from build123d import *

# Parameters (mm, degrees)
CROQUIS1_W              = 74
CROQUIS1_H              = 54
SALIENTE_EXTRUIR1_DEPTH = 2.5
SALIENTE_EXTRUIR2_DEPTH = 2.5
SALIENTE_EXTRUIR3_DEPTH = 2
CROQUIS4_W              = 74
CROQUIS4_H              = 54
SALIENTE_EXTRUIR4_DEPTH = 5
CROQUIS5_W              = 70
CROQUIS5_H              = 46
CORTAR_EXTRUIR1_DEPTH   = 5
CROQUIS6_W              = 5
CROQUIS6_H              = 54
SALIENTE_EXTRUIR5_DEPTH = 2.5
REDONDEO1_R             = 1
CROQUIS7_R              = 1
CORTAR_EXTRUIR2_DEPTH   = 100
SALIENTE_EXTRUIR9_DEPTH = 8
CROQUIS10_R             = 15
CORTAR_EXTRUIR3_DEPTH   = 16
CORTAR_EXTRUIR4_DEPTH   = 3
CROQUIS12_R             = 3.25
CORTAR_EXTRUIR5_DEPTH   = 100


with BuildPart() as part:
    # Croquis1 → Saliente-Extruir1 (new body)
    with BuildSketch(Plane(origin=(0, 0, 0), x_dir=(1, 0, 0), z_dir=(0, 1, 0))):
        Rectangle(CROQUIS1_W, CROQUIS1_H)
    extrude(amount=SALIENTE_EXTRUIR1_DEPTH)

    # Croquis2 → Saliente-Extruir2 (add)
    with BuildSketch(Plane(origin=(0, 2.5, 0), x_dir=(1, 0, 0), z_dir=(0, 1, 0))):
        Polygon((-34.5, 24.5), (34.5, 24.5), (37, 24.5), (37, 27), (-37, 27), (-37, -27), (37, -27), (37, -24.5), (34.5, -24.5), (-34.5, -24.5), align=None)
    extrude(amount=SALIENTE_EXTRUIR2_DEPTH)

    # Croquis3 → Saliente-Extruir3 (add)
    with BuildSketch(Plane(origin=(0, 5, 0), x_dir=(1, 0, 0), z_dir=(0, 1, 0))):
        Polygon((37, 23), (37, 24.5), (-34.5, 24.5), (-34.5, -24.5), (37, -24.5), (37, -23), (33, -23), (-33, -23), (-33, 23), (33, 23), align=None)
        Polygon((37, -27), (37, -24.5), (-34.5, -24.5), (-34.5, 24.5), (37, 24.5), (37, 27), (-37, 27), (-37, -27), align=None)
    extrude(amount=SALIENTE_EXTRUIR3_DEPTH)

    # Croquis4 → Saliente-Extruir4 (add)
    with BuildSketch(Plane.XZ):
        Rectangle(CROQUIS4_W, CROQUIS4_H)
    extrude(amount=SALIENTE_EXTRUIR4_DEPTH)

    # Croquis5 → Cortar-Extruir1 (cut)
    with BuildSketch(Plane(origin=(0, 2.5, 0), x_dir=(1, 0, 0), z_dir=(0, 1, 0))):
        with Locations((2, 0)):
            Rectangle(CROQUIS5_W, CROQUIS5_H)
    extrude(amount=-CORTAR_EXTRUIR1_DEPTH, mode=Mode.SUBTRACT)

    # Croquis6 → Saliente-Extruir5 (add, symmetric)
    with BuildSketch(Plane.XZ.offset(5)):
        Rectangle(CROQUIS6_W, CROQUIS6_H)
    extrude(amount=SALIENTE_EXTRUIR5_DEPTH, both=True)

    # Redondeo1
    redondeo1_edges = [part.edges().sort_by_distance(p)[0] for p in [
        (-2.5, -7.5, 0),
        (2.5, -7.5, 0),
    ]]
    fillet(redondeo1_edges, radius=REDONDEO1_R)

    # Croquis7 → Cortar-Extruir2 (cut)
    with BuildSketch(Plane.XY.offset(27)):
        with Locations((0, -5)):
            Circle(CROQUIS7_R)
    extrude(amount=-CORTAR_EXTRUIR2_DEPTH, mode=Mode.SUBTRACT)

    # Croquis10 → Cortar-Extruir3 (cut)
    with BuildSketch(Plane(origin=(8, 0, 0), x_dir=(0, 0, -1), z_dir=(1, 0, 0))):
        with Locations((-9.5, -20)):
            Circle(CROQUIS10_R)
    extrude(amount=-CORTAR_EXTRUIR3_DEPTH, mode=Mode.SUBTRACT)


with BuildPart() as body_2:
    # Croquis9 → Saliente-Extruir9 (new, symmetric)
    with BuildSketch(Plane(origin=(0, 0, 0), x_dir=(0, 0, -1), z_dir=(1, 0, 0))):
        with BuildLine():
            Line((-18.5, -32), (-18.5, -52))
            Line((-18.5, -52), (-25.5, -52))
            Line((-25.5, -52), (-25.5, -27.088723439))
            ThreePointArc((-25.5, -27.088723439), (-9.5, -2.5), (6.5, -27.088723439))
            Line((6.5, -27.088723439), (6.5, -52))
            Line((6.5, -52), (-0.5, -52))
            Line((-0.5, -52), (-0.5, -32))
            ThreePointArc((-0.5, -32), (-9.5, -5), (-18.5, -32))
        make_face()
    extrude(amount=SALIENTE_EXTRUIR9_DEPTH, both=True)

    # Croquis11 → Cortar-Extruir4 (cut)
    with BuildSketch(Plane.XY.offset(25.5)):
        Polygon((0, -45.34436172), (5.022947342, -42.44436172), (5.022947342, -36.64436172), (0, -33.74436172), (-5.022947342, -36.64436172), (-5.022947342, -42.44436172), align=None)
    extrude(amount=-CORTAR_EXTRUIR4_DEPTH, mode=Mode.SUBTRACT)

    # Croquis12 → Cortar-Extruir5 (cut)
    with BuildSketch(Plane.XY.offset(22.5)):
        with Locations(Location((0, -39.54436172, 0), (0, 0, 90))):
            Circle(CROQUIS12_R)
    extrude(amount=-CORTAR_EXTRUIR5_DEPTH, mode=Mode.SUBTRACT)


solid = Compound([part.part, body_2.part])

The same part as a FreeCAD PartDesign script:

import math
import FreeCAD as App
import Part
import Sketcher

V = App.Vector
Q = App.Units.Quantity


def edges_at(feature, points):
    """Names of the edges that pass closest to the given points."""
    edges = feature.Shape.Edges
    near = lambda p: min(range(len(edges)), key=lambda i: edges[i].distToShape(Part.Vertex(*p))[0])
    return sorted({f"Edge{near(p) + 1}" for p in points})

doc = App.newDocument("Part")
params = doc.addObject("Spreadsheet::Sheet", "Params")
for row, (alias, value) in enumerate([
    ("sketch1_width", "74 mm"),
    ("sketch1_height", "54 mm"),
    ("pad1_length", "2.5 mm"),
    ("sketch2_width", "74 mm"),
    ("sketch2_height", "54 mm"),
    ("sketch2_height2", "49 mm"),
    ("sketch2_width2", "71.5 mm"),
    ("pad2_length", "2.5 mm"),
    ("sketch3_width", "74 mm"),
    ("sketch3_width2", "70 mm"),
    ("sketch3_height", "4 mm"),
    ("sketch3_height2", "54 mm"),
    ("pad3_length", "2 mm"),
    ("sketch4_width", "74 mm"),
    ("sketch4_height", "54 mm"),
    ("pad4_length", "5 mm"),
    ("sketch5_width", "70 mm"),
    ("sketch5_height", "46 mm"),
    ("pocket1_length", "5 mm"),
    ("sketch6_width", "5 mm"),
    ("sketch6_height", "54 mm"),
    ("pad5_length", "5 mm"),
    ("fillet_radius", "1 mm"),
    ("sketch7_diameter", "2 mm"),
    ("pocket2_length", "100 mm"),
    ("sketch8_diameter", "30 mm"),
    ("pocket3_length", "16 mm"),
    ("sketch9_radius", "15 mm"),
    ("sketch9_radius2", "17.5 mm"),
    ("sketch9_width", "20 mm"),
    ("sketch9_height", "7 mm"),
    ("pad6_length", "16 mm"),
    ("sketch10_height", "5.8 mm"),
    ("sketch10_length", "5.8 mm"),
    ("pocket4_length", "3 mm"),
    ("sketch11_diameter", "6.5 mm"),
    ("pocket5_length", "100 mm"),
], start=1):
    params.set(f"A{row}", alias)
    params.set(f"B{row}", "=" + value)
    params.setAlias(f"B{row}", alias)

body = doc.addObject("PartDesign::Body", "Body")

# Sketch on XZ plane
sketch1 = body.newObject("Sketcher::SketchObject", "Sketch")
sketch1.AttachmentSupport = (doc.getObject("XZ_Plane"), [""])
sketch1.MapMode = "FlatFace"
sketch1.addGeometry(Part.LineSegment(V(-37, -27, 0), V(-37, 27, 0)), False)
sketch1.addGeometry(Part.LineSegment(V(-37, 27, 0), V(37, 27, 0)), False)
sketch1.addGeometry(Part.LineSegment(V(37, 27, 0), V(37, -27, 0)), False)
sketch1.addGeometry(Part.LineSegment(V(37, -27, 0), V(-37, -27, 0)), False)
sketch1.addConstraint(Sketcher.Constraint("Coincident", 0, 2, 1, 1))
sketch1.addConstraint(Sketcher.Constraint("Coincident", 1, 2, 2, 1))
sketch1.addConstraint(Sketcher.Constraint("Coincident", 2, 2, 3, 1))
sketch1.addConstraint(Sketcher.Constraint("Coincident", 3, 2, 0, 1))
sketch1.addConstraint(Sketcher.Constraint("Vertical", 0))
sketch1.addConstraint(Sketcher.Constraint("Horizontal", 1))
sketch1.addConstraint(Sketcher.Constraint("Vertical", 2))
sketch1.addConstraint(Sketcher.Constraint("Horizontal", 3))
sketch1.addConstraint(Sketcher.Constraint("Symmetric", 0, 2, 2, 2, -1, 1))
sketch1.addConstraint(Sketcher.Constraint("DistanceX", 1, 1, 1, 2, 74.0))
sketch1.addConstraint(Sketcher.Constraint("DistanceY", 0, 1, 0, 2, 54.0))
sketch1.setExpression("Constraints[9]", "Params.sketch1_width")
sketch1.setExpression("Constraints[10]", "Params.sketch1_height")
pad1 = body.newObject("PartDesign::Pad", "Pad")
pad1.Profile = sketch1
pad1.setExpression("Length", "Params.pad1_length")
pad1.Reversed = True

# Sketch on XZ plane
sketch2 = body.newObject("Sketcher::SketchObject", "Sketch001")
sketch2.AttachmentSupport = (doc.getObject("XZ_Plane"), [""])
sketch2.MapMode = "FlatFace"
sketch2.AttachmentOffset = App.Placement(V(0, 0, -2.5), App.Rotation())
sketch2.addGeometry(Part.LineSegment(V(-34.5, -24.5, 0), V(37, -24.5, 0)), False)
sketch2.addGeometry(Part.LineSegment(V(37, -24.5, 0), V(37, -27, 0)), False)
sketch2.addGeometry(Part.LineSegment(V(37, -27, 0), V(-37, -27, 0)), False)
sketch2.addGeometry(Part.LineSegment(V(-37, -27, 0), V(-37, 27, 0)), False)
sketch2.addGeometry(Part.LineSegment(V(-37, 27, 0), V(37, 27, 0)), False)
sketch2.addGeometry(Part.LineSegment(V(37, 27, 0), V(37, 24.5, 0)), False)
sketch2.addGeometry(Part.LineSegment(V(37, 24.5, 0), V(-34.5, 24.5, 0)), False)
sketch2.addGeometry(Part.LineSegment(V(-34.5, 24.5, 0), V(-34.5, -24.5, 0)), False)
sketch2.addConstraint(Sketcher.Constraint("Coincident", 0, 2, 1, 1))
sketch2.addConstraint(Sketcher.Constraint("Coincident", 1, 2, 2, 1))
sketch2.addConstraint(Sketcher.Constraint("Coincident", 2, 2, 3, 1))
sketch2.addConstraint(Sketcher.Constraint("Coincident", 3, 2, 4, 1))
sketch2.addConstraint(Sketcher.Constraint("Coincident", 4, 2, 5, 1))
sketch2.addConstraint(Sketcher.Constraint("Coincident", 5, 2, 6, 1))
sketch2.addConstraint(Sketcher.Constraint("Coincident", 6, 2, 7, 1))
sketch2.addConstraint(Sketcher.Constraint("Coincident", 7, 2, 0, 1))
sketch2.addConstraint(Sketcher.Constraint("Horizontal", 0))
sketch2.addConstraint(Sketcher.Constraint("Vertical", 1))
sketch2.addConstraint(Sketcher.Constraint("Horizontal", 2))
sketch2.addConstraint(Sketcher.Constraint("Vertical", 3))
sketch2.addConstraint(Sketcher.Constraint("Horizontal", 4))
sketch2.addConstraint(Sketcher.Constraint("Vertical", 5))
sketch2.addConstraint(Sketcher.Constraint("Horizontal", 6))
sketch2.addConstraint(Sketcher.Constraint("Vertical", 7))
sketch2.addConstraint(Sketcher.Constraint("Symmetric", 1, 2, 3, 2, -1, 1))
sketch2.addConstraint(Sketcher.Constraint("Symmetric", 0, 2, 5, 2, -1))
sketch2.addConstraint(Sketcher.Constraint("DistanceX", 2, 2, 2, 1, 74.0))
sketch2.addConstraint(Sketcher.Constraint("DistanceY", 3, 1, 3, 2, 54.0))
sketch2.addConstraint(Sketcher.Constraint("DistanceY", 7, 2, 7, 1, 49.0))
sketch2.addConstraint(Sketcher.Constraint("DistanceX", 0, 1, 0, 2, 71.5))
sketch2.setExpression("Constraints[18]", "Params.sketch2_width")
sketch2.setExpression("Constraints[19]", "Params.sketch2_height")
sketch2.setExpression("Constraints[20]", "Params.sketch2_height2")
sketch2.setExpression("Constraints[21]", "Params.sketch2_width2")
pad2 = body.newObject("PartDesign::Pad", "Pad001")
pad2.Profile = sketch2
pad2.setExpression("Length", "Params.pad2_length")
pad2.Reversed = True

# Sketch on XZ plane
sketch3 = body.newObject("Sketcher::SketchObject", "Sketch002")
sketch3.AttachmentSupport = (doc.getObject("XZ_Plane"), [""])
sketch3.MapMode = "FlatFace"
sketch3.AttachmentOffset = App.Placement(V(0, 0, -5), App.Rotation())
sketch3.addGeometry(Part.LineSegment(V(37, -23, 0), V(37, -27, 0)), False)
sketch3.addGeometry(Part.LineSegment(V(37, -27, 0), V(-37, -27, 0)), False)
sketch3.addGeometry(Part.LineSegment(V(-37, -27, 0), V(-37, 27, 0)), False)
sketch3.addGeometry(Part.LineSegment(V(-37, 27, 0), V(37, 27, 0)), False)
sketch3.addGeometry(Part.LineSegment(V(37, 27, 0), V(37, 23, 0)), False)
sketch3.addGeometry(Part.LineSegment(V(37, 23, 0), V(-33, 23, 0)), False)
sketch3.addGeometry(Part.LineSegment(V(-33, 23, 0), V(-33, -23, 0)), False)
sketch3.addGeometry(Part.LineSegment(V(-33, -23, 0), V(37, -23, 0)), False)
sketch3.addConstraint(Sketcher.Constraint("Coincident", 0, 2, 1, 1))
sketch3.addConstraint(Sketcher.Constraint("Coincident", 1, 2, 2, 1))
sketch3.addConstraint(Sketcher.Constraint("Coincident", 2, 2, 3, 1))
sketch3.addConstraint(Sketcher.Constraint("Coincident", 3, 2, 4, 1))
sketch3.addConstraint(Sketcher.Constraint("Coincident", 4, 2, 5, 1))
sketch3.addConstraint(Sketcher.Constraint("Coincident", 5, 2, 6, 1))
sketch3.addConstraint(Sketcher.Constraint("Coincident", 6, 2, 7, 1))
sketch3.addConstraint(Sketcher.Constraint("Coincident", 7, 2, 0, 1))
sketch3.addConstraint(Sketcher.Constraint("Vertical", 0))
sketch3.addConstraint(Sketcher.Constraint("Horizontal", 1))
sketch3.addConstraint(Sketcher.Constraint("Vertical", 2))
sketch3.addConstraint(Sketcher.Constraint("Horizontal", 3))
sketch3.addConstraint(Sketcher.Constraint("Vertical", 4))
sketch3.addConstraint(Sketcher.Constraint("Horizontal", 5))
sketch3.addConstraint(Sketcher.Constraint("Vertical", 6))
sketch3.addConstraint(Sketcher.Constraint("Horizontal", 7))
sketch3.addConstraint(Sketcher.Constraint("Symmetric", 0, 2, 2, 2, -1, 1))
sketch3.addConstraint(Sketcher.Constraint("Symmetric", 4, 2, 7, 2, -1))
sketch3.addConstraint(Sketcher.Constraint("DistanceX", 1, 2, 1, 1, 74.0))
sketch3.addConstraint(Sketcher.Constraint("DistanceX", 5, 2, 5, 1, 70.0))
sketch3.addConstraint(Sketcher.Constraint("DistanceY", 0, 2, 0, 1, 4.0))
sketch3.addConstraint(Sketcher.Constraint("DistanceY", 2, 1, 2, 2, 54.0))
sketch3.setExpression("Constraints[18]", "Params.sketch3_width")
sketch3.setExpression("Constraints[19]", "Params.sketch3_width2")
sketch3.setExpression("Constraints[20]", "Params.sketch3_height")
sketch3.setExpression("Constraints[21]", "Params.sketch3_height2")
pad3 = body.newObject("PartDesign::Pad", "Pad002")
pad3.Profile = sketch3
pad3.setExpression("Length", "Params.pad3_length")
pad3.Reversed = True

# Sketch on XZ plane
sketch4 = body.newObject("Sketcher::SketchObject", "Sketch003")
sketch4.AttachmentSupport = (doc.getObject("XZ_Plane"), [""])
sketch4.MapMode = "FlatFace"
sketch4.addGeometry(Part.LineSegment(V(-37, 27, 0), V(-37, -27, 0)), False)
sketch4.addGeometry(Part.LineSegment(V(-37, -27, 0), V(37, -27, 0)), False)
sketch4.addGeometry(Part.LineSegment(V(37, -27, 0), V(37, 27, 0)), False)
sketch4.addGeometry(Part.LineSegment(V(37, 27, 0), V(-37, 27, 0)), False)
sketch4.addConstraint(Sketcher.Constraint("Coincident", 0, 2, 1, 1))
sketch4.addConstraint(Sketcher.Constraint("Coincident", 1, 2, 2, 1))
sketch4.addConstraint(Sketcher.Constraint("Coincident", 2, 2, 3, 1))
sketch4.addConstraint(Sketcher.Constraint("Coincident", 3, 2, 0, 1))
sketch4.addConstraint(Sketcher.Constraint("Vertical", 0))
sketch4.addConstraint(Sketcher.Constraint("Horizontal", 1))
sketch4.addConstraint(Sketcher.Constraint("Vertical", 2))
sketch4.addConstraint(Sketcher.Constraint("Horizontal", 3))
sketch4.addConstraint(Sketcher.Constraint("Symmetric", 0, 2, 2, 2, -1, 1))
sketch4.addConstraint(Sketcher.Constraint("DistanceX", 1, 1, 1, 2, 74.0))
sketch4.addConstraint(Sketcher.Constraint("DistanceY", 0, 2, 0, 1, 54.0))
sketch4.setExpression("Constraints[9]", "Params.sketch4_width")
sketch4.setExpression("Constraints[10]", "Params.sketch4_height")
pad4 = body.newObject("PartDesign::Pad", "Pad003")
pad4.Profile = sketch4
pad4.setExpression("Length", "Params.pad4_length")

# Sketch on XZ plane
sketch5 = body.newObject("Sketcher::SketchObject", "Sketch004")
sketch5.AttachmentSupport = (doc.getObject("XZ_Plane"), [""])
sketch5.MapMode = "FlatFace"
sketch5.AttachmentOffset = App.Placement(V(0, 0, -2.5), App.Rotation())
sketch5.addGeometry(Part.LineSegment(V(-33, -23, 0), V(-33, 23, 0)), False)
sketch5.addGeometry(Part.LineSegment(V(-33, 23, 0), V(37, 23, 0)), False)
sketch5.addGeometry(Part.LineSegment(V(37, 23, 0), V(37, -23, 0)), False)
sketch5.addGeometry(Part.LineSegment(V(37, -23, 0), V(-33, -23, 0)), False)
sketch5.addConstraint(Sketcher.Constraint("Coincident", 0, 2, 1, 1))
sketch5.addConstraint(Sketcher.Constraint("Coincident", 1, 2, 2, 1))
sketch5.addConstraint(Sketcher.Constraint("Coincident", 2, 2, 3, 1))
sketch5.addConstraint(Sketcher.Constraint("Coincident", 3, 2, 0, 1))
sketch5.addConstraint(Sketcher.Constraint("Vertical", 0))
sketch5.addConstraint(Sketcher.Constraint("Horizontal", 1))
sketch5.addConstraint(Sketcher.Constraint("Vertical", 2))
sketch5.addConstraint(Sketcher.Constraint("Horizontal", 3))
sketch5.addConstraint(Sketcher.Constraint("DistanceX", 1, 1, 1, 2, 70.0))
sketch5.addConstraint(Sketcher.Constraint("DistanceY", 0, 1, 0, 2, 46.0))
sketch5.addConstraint(Sketcher.Constraint("DistanceX", 0, 2, -1, 1, 33.0))
sketch5.addConstraint(Sketcher.Constraint("DistanceY", -1, 1, 0, 2, 23.0))
sketch5.setExpression("Constraints[8]", "Params.sketch5_width")
sketch5.setExpression("Constraints[9]", "Params.sketch5_height")
pocket1 = body.newObject("PartDesign::Pocket", "Pocket")
pocket1.Profile = sketch5
pocket1.setExpression("Length", "Params.pocket1_length")
pocket1.Reversed = True

# Sketch on XZ plane
sketch6 = body.newObject("Sketcher::SketchObject", "Sketch005")
sketch6.AttachmentSupport = (doc.getObject("XZ_Plane"), [""])
sketch6.MapMode = "FlatFace"
sketch6.AttachmentOffset = App.Placement(V(0, 0, 5), App.Rotation())
sketch6.addGeometry(Part.LineSegment(V(-2, 27, 0), V(-2, -27, 0)), False)
sketch6.addGeometry(Part.LineSegment(V(-2, -27, 0), V(2, -27, 0)), False)
sketch6.addGeometry(Part.LineSegment(V(2, -27, 0), V(2, 27, 0)), False)
sketch6.addGeometry(Part.LineSegment(V(2, 27, 0), V(-2, 27, 0)), False)
sketch6.addConstraint(Sketcher.Constraint("Coincident", 0, 2, 1, 1))
sketch6.addConstraint(Sketcher.Constraint("Coincident", 1, 2, 2, 1))
sketch6.addConstraint(Sketcher.Constraint("Coincident", 2, 2, 3, 1))
sketch6.addConstraint(Sketcher.Constraint("Coincident", 3, 2, 0, 1))
sketch6.addConstraint(Sketcher.Constraint("Vertical", 0))
sketch6.addConstraint(Sketcher.Constraint("Horizontal", 1))
sketch6.addConstraint(Sketcher.Constraint("Vertical", 2))
sketch6.addConstraint(Sketcher.Constraint("Horizontal", 3))
sketch6.addConstraint(Sketcher.Constraint("Symmetric", 0, 2, 2, 2, -1, 1))
sketch6.addConstraint(Sketcher.Constraint("DistanceX", 1, 1, 1, 2, 5.0))
sketch6.addConstraint(Sketcher.Constraint("DistanceY", 0, 2, 0, 1, 54.0))
sketch6.setExpression("Constraints[9]", "Params.sketch6_width")
sketch6.setExpression("Constraints[10]", "Params.sketch6_height")
pad5 = body.newObject("PartDesign::Pad", "Pad004")
pad5.Profile = sketch6
pad5.setExpression("Length", "Params.pad5_length")
pad5.Midplane = True
doc.recompute()

fillet = body.newObject("PartDesign::Fillet", "Fillet")
fillet.Base = (pad5, edges_at(pad5, [(-2.5, -7.5, 0), (2.5, -7.5, 0)]))
fillet.setExpression("Radius", "Params.fillet_radius")

# Sketch on XY plane
sketch7 = body.newObject("Sketcher::SketchObject", "Sketch006")
sketch7.AttachmentSupport = (doc.getObject("XY_Plane"), [""])
sketch7.MapMode = "FlatFace"
sketch7.AttachmentOffset = App.Placement(V(0, 0, 27), App.Rotation())
sketch7.addGeometry(Part.Circle(V(0, -5, 0), V(0, 0, 1), 1), False)
sketch7.addConstraint(Sketcher.Constraint("PointOnObject", 0, 3, -2))
sketch7.addConstraint(Sketcher.Constraint("Diameter", 0, 2.0))
sketch7.addConstraint(Sketcher.Constraint("DistanceY", 0, 3, -1, 1, 5.0))
sketch7.setExpression("Constraints[1]", "Params.sketch7_diameter")
pocket2 = body.newObject("PartDesign::Pocket", "Pocket001")
pocket2.Profile = sketch7
pocket2.setExpression("Length", "Params.pocket2_length")

# Sketch on YZ plane
sketch8 = body.newObject("Sketcher::SketchObject", "Sketch007")
sketch8.AttachmentSupport = (doc.getObject("YZ_Plane"), [""])
sketch8.MapMode = "FlatFace"
sketch8.AttachmentOffset = App.Placement(V(0, 0, 8), App.Rotation())
sketch8.addGeometry(Part.Circle(V(-20, 10, 0), V(0, 0, 1), 15), False)
sketch8.addConstraint(Sketcher.Constraint("Diameter", 0, 30.0))
sketch8.addConstraint(Sketcher.Constraint("DistanceX", 0, 3, -1, 1, 20.0))
sketch8.addConstraint(Sketcher.Constraint("DistanceY", -1, 1, 0, 3, 9.5))
sketch8.setExpression("Constraints[0]", "Params.sketch8_diameter")
pocket3 = body.newObject("PartDesign::Pocket", "Pocket002")
pocket3.Profile = sketch8
pocket3.setExpression("Length", "Params.pocket3_length")
body2 = doc.addObject("PartDesign::Body", "Body001")

# Sketch on YZ plane
sketch9 = body2.newObject("Sketcher::SketchObject", "Sketch008")
sketch9.AttachmentSupport = (doc.getObject("YZ_Plane001"), [""])
sketch9.MapMode = "FlatFace"
sketch9.addGeometry(Part.LineSegment(V(-52, 18, 0), V(-32, 18, 0)), False)
sketch9.addGeometry(Part.ArcOfCircle(Part.Circle(V(-20, 10, 0), V(0, 0, 1), 15), math.radians(-143), math.radians(143)), False)
sketch9.addGeometry(Part.LineSegment(V(-32, 0, 0), V(-52, 0, 0)), False)
sketch9.addGeometry(Part.LineSegment(V(-52, 0, 0), V(-52, -6, 0)), False)
sketch9.addGeometry(Part.LineSegment(V(-52, -6, 0), V(-27, -6, 0)), False)
sketch9.addGeometry(Part.ArcOfCircle(Part.Circle(V(-20, 10, 0), V(0, 0, 1), 18), math.radians(-114), math.radians(114)), False)
sketch9.addGeometry(Part.LineSegment(V(-27, 26, 0), V(-52, 26, 0)), False)
sketch9.addGeometry(Part.LineSegment(V(-52, 26, 0), V(-52, 18, 0)), False)
sketch9.addConstraint(Sketcher.Constraint("Coincident", 0, 2, 1, 2))
sketch9.addConstraint(Sketcher.Constraint("Coincident", 1, 1, 2, 1))
sketch9.addConstraint(Sketcher.Constraint("Coincident", 2, 2, 3, 1))
sketch9.addConstraint(Sketcher.Constraint("Coincident", 3, 2, 4, 1))
sketch9.addConstraint(Sketcher.Constraint("Coincident", 4, 2, 5, 1))
sketch9.addConstraint(Sketcher.Constraint("Coincident", 5, 2, 6, 1))
sketch9.addConstraint(Sketcher.Constraint("Coincident", 6, 2, 7, 1))
sketch9.addConstraint(Sketcher.Constraint("Coincident", 7, 2, 0, 1))
sketch9.addConstraint(Sketcher.Constraint("Horizontal", 0))
sketch9.addConstraint(Sketcher.Constraint("Horizontal", 2))
sketch9.addConstraint(Sketcher.Constraint("Vertical", 3))
sketch9.addConstraint(Sketcher.Constraint("Horizontal", 4))
sketch9.addConstraint(Sketcher.Constraint("Horizontal", 6))
sketch9.addConstraint(Sketcher.Constraint("Vertical", 7))
sketch9.addConstraint(Sketcher.Constraint("Coincident", 5, 3, 1, 3))
sketch9.addConstraint(Sketcher.Constraint("Vertical", 0, 2, 1, 1))
sketch9.addConstraint(Sketcher.Constraint("Vertical", 4, 2, 5, 2))
sketch9.addConstraint(Sketcher.Constraint("Vertical", 3, 2, 6, 2))
sketch9.addConstraint(Sketcher.Constraint("Radius", 1, 15.0))
sketch9.addConstraint(Sketcher.Constraint("Radius", 5, 17.5))
sketch9.addConstraint(Sketcher.Constraint("DistanceX", 0, 1, 0, 2, 20.0))
sketch9.addConstraint(Sketcher.Constraint("DistanceY", 3, 2, 3, 1, 7.0))
sketch9.addConstraint(Sketcher.Constraint("DistanceX", 1, 3, -1, 1, 20.0))
sketch9.addConstraint(Sketcher.Constraint("DistanceX", 0, 2, -1, 1, 32.0))
sketch9.addConstraint(Sketcher.Constraint("DistanceY", -1, 1, 1, 3, 9.5))
sketch9.setExpression("Constraints[18]", "Params.sketch9_radius")
sketch9.setExpression("Constraints[19]", "Params.sketch9_radius2")
sketch9.setExpression("Constraints[20]", "Params.sketch9_width")
sketch9.setExpression("Constraints[21]", "Params.sketch9_height")
pad6 = body2.newObject("PartDesign::Pad", "Pad005")
pad6.Profile = sketch9
pad6.setExpression("Length", "Params.pad6_length")
pad6.Midplane = True

# Sketch on XY plane
sketch10 = body2.newObject("Sketcher::SketchObject", "Sketch009")
sketch10.AttachmentSupport = (doc.getObject("XY_Plane001"), [""])
sketch10.MapMode = "FlatFace"
sketch10.AttachmentOffset = App.Placement(V(0, 0, 25.5), App.Rotation())
sketch10.addGeometry(Part.LineSegment(V(0, -45, 0), V(5, -42, 0)), False)
sketch10.addGeometry(Part.LineSegment(V(5, -42, 0), V(5, -37, 0)), False)
sketch10.addGeometry(Part.LineSegment(V(5, -37, 0), V(0, -34, 0)), False)
sketch10.addGeometry(Part.LineSegment(V(0, -34, 0), V(-5, -37, 0)), False)
sketch10.addGeometry(Part.LineSegment(V(-5, -37, 0), V(-5, -42, 0)), False)
sketch10.addGeometry(Part.LineSegment(V(-5, -42, 0), V(0, -45, 0)), False)
sketch10.addConstraint(Sketcher.Constraint("Coincident", 0, 2, 1, 1))
sketch10.addConstraint(Sketcher.Constraint("Coincident", 1, 2, 2, 1))
sketch10.addConstraint(Sketcher.Constraint("Coincident", 2, 2, 3, 1))
sketch10.addConstraint(Sketcher.Constraint("Coincident", 3, 2, 4, 1))
sketch10.addConstraint(Sketcher.Constraint("Coincident", 4, 2, 5, 1))
sketch10.addConstraint(Sketcher.Constraint("Coincident", 5, 2, 0, 1))
sketch10.addConstraint(Sketcher.Constraint("Vertical", 1))
sketch10.addConstraint(Sketcher.Constraint("Vertical", 4))
sketch10.addConstraint(Sketcher.Constraint("Symmetric", 1, 2, 3, 2, -2))
sketch10.addConstraint(Sketcher.Constraint("PointOnObject", 2, 2, -2))
sketch10.addConstraint(Sketcher.Constraint("PointOnObject", 5, 2, -2))
sketch10.addConstraint(Sketcher.Constraint("Parallel", 0, 3))
sketch10.addConstraint(Sketcher.Constraint("Parallel", 2, 5))
sketch10.addConstraint(Sketcher.Constraint("Angle", 0, Q("30 deg")))
sketch10.addConstraint(Sketcher.Constraint("DistanceY", 1, 1, 1, 2, 5.8))
sketch10.addConstraint(Sketcher.Constraint("Distance", 0, 5.8))
sketch10.addConstraint(Sketcher.Constraint("DistanceY", 0, 2, -1, 1, 42.444362))
sketch10.setExpression("Constraints[14]", "Params.sketch10_height")
sketch10.setExpression("Constraints[15]", "Params.sketch10_length")
pocket4 = body2.newObject("PartDesign::Pocket", "Pocket003")
pocket4.Profile = sketch10
pocket4.setExpression("Length", "Params.pocket4_length")

# Sketch on XY plane
sketch11 = body2.newObject("Sketcher::SketchObject", "Sketch010")
sketch11.AttachmentSupport = (doc.getObject("XY_Plane001"), [""])
sketch11.MapMode = "FlatFace"
sketch11.AttachmentOffset = App.Placement(V(0, 0, 22.5), App.Rotation())
sketch11.addGeometry(Part.Circle(V(0, -39.5, 0), V(0, 0, 1), 3.2), False)
sketch11.addConstraint(Sketcher.Constraint("PointOnObject", 0, 3, -2))
sketch11.addConstraint(Sketcher.Constraint("Diameter", 0, 6.5))
sketch11.addConstraint(Sketcher.Constraint("DistanceY", 0, 3, -1, 1, 39.544362))
sketch11.setExpression("Constraints[1]", "Params.sketch11_diameter")
pocket5 = body2.newObject("PartDesign::Pocket", "Pocket004")
pocket5.Profile = sketch11
pocket5.setExpression("Length", "Params.pocket5_length")

doc.recompute()
